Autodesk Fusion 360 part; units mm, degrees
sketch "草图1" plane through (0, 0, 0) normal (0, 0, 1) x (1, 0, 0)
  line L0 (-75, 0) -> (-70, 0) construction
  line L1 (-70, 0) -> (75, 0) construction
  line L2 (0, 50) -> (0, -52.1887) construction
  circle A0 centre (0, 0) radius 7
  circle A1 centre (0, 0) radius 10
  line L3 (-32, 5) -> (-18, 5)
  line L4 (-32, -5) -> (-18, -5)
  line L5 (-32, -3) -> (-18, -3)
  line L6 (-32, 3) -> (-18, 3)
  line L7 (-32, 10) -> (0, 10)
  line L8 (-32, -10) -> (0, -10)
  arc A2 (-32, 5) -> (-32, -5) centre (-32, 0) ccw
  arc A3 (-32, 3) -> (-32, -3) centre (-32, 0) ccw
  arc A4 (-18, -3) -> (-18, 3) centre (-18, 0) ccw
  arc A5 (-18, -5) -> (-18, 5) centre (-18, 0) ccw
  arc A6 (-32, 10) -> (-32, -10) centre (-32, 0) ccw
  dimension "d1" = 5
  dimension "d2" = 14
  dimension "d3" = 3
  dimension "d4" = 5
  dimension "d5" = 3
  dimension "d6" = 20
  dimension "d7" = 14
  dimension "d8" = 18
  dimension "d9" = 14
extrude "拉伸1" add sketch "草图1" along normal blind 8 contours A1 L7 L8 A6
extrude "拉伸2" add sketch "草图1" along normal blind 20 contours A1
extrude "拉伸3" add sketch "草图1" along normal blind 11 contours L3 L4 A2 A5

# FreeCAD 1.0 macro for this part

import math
import FreeCAD as App
import Part
import Sketcher
Q = App.Units.Quantity

doc = App.newDocument("Part")
body = doc.addObject("PartDesign::Body", "Body")

# Sketch on XY plane
sketch1 = doc.addObject("Sketcher::SketchObject", "Sketch")
body.addObject(sketch1)
sketch1.AttachmentSupport = (doc.XY_Plane, [""])
sketch1.MapMode = "FlatFace"
sketch1.addGeometry(Part.ArcOfCircle(Part.Circle(App.Vector(0, 0, 0), App.Vector(0, 0, 1), 10), math.radians(90), math.radians(270)), False)
sketch1.addGeometry(Part.LineSegment(App.Vector(0, 10, 0), App.Vector(-32, 10, 0)), False)
sketch1.addGeometry(Part.ArcOfCircle(Part.Circle(App.Vector(-32, 0, 0), App.Vector(0, 0, 1), 10), math.radians(90), math.radians(270)), False)
sketch1.addGeometry(Part.LineSegment(App.Vector(-32, -10, 0), App.Vector(0, -10, 0)), False)
sketch1.addGeometry(Part.ArcOfCircle(Part.Circle(App.Vector(-32, 0, 0), App.Vector(0, 0, 1), 5), math.radians(90), math.radians(270)), False)
sketch1.addGeometry(Part.LineSegment(App.Vector(-32, 5, 0), App.Vector(-18, 5, 0)), False)
sketch1.addGeometry(Part.ArcOfCircle(Part.Circle(App.Vector(-18, 0, 0), App.Vector(0, 0, 1), 5), math.radians(-90), math.radians(90)), False)
sketch1.addGeometry(Part.LineSegment(App.Vector(-18, -5, 0), App.Vector(-32, -5, 0)), False)
sketch1.addConstraint(Sketcher.Constraint("Tangent", 0, 1, 1, 1))
sketch1.addConstraint(Sketcher.Constraint("Tangent", 1, 2, 2, 1))
sketch1.addConstraint(Sketcher.Constraint("Tangent", 2, 2, 3, 1))
sketch1.addConstraint(Sketcher.Constraint("Tangent", 3, 2, 0, 2))
sketch1.addConstraint(Sketcher.Constraint("Tangent", 4, 1, 5, 1))
sketch1.addConstraint(Sketcher.Constraint("Tangent", 5, 2, 6, 2))
sketch1.addConstraint(Sketcher.Constraint("Tangent", 6, 1, 7, 1))
sketch1.addConstraint(Sketcher.Constraint("Tangent", 7, 2, 4, 2))
sketch1.addConstraint(Sketcher.Constraint("Horizontal", 1))
sketch1.addConstraint(Sketcher.Constraint("Horizontal", 3))
sketch1.addConstraint(Sketcher.Constraint("Horizontal", 5))
sketch1.addConstraint(Sketcher.Constraint("Horizontal", 7))
sketch1.addConstraint(Sketcher.Constraint("Coincident", 0, 3, -1, 1))
sketch1.addConstraint(Sketcher.Constraint("Coincident", 4, 3, 2, 3))
sketch1.addConstraint(Sketcher.Constraint("Radius", 0, Q("10 mm")))
sketch1.addConstraint(Sketcher.Constraint("Radius", 4, Q("5 mm")))
sketch1.addConstraint(Sketcher.Constraint("DistanceX", 5, 1, 5, 2, Q("14 mm")))
sketch1.addConstraint(Sketcher.Constraint("DistanceX", 6, 3, -1, 1, Q("18 mm")))
pad1 = doc.addObject("PartDesign::Pad", "Pad")
body.addObject(pad1)
pad1.Profile = sketch1
pad1.Length = 8

# Sketch on XY plane
sketch2 = doc.addObject("Sketcher::SketchObject", "Sketch001")
body.addObject(sketch2)
sketch2.AttachmentSupport = (doc.XY_Plane, [""])
sketch2.MapMode = "FlatFace"
sketch2.addGeometry(Part.Circle(App.Vector(0, 0, 0), App.Vector(0, 0, 1), 10), False)
sketch2.addGeometry(Part.Circle(App.Vector(0, 0, 0), App.Vector(0, 0, 1), 7), False)
sketch2.addConstraint(Sketcher.Constraint("Coincident", 0, 3, -1, 1))
sketch2.addConstraint(Sketcher.Constraint("Coincident", 1, 3, -1, 1))
sketch2.addConstraint(Sketcher.Constraint("Diameter", 0, Q("20 mm")))
sketch2.addConstraint(Sketcher.Constraint("Diameter", 1, Q("14 mm")))
pad2 = doc.addObject("PartDesign::Pad", "Pad001")
body.addObject(pad2)
pad2.Profile = sketch2
pad2.Length = 20

# Sketch on XY plane
sketch3 = doc.addObject("Sketcher::SketchObject", "Sketch002")
body.addObject(sketch3)
sketch3.AttachmentSupport = (doc.XY_Plane, [""])
sketch3.MapMode = "FlatFace"
sketch3.addGeometry(Part.LineSegment(App.Vector(-18, 5, 0), App.Vector(-32, 5, 0)), False)
sketch3.addGeometry(Part.ArcOfCircle(Part.Circle(App.Vector(-32, 0, 0), App.Vector(0, 0, 1), 5), math.radians(90), math.radians(270)), False)
sketch3.addGeometry(Part.LineSegment(App.Vector(-32, -5, 0), App.Vector(-18, -5, 0)), False)
sketch3.addGeometry(Part.ArcOfCircle(Part.Circle(App.Vector(-18, 0, 0), App.Vector(0, 0, 1), 5), math.radians(-90), math.radians(90)), False)
sketch3.addGeometry(Part.LineSegment(App.Vector(-18, -3, 0), App.Vector(-32, -3, 0)), False)
sketch3.addGeometry(Part.ArcOfCircle(Part.Circle(App.Vector(-32, 0, 0), App.Vector(0, 0, 1), 3), math.radians(90), math.radians(270)), False)
sketch3.addGeometry(Part.LineSegment(App.Vector(-32, 3, 0), App.Vector(-18, 3, 0)), False)
sketch3.addGeometry(Part.ArcOfCircle(Part.Circle(App.Vector(-18, 0, 0), App.Vector(0, 0, 1), 3), math.radians(-90), math.radians(90)), False)
sketch3.addConstraint(Sketcher.Constraint("Tangent", 0, 2, 1, 1))
sketch3.addConstraint(Sketcher.Constraint("Tangent", 1, 2, 2, 1))
sketch3.addConstraint(Sketcher.Constraint("Tangent", 2, 2, 3, 1))
sketch3.addConstraint(Sketcher.Constraint("Tangent", 3, 2, 0, 1))
sketch3.addConstraint(Sketcher.Constraint("Tangent", 4, 2, 5, 2))
sketch3.addConstraint(Sketcher.Constraint("Tangent", 5, 1, 6, 1))
sketch3.addConstraint(Sketcher.Constraint("Tangent", 6, 2, 7, 2))
sketch3.addConstraint(Sketcher.Constraint("Tangent", 7, 1, 4, 1))
sketch3.addConstraint(Sketcher.Constraint("Horizontal", 0))
sketch3.addConstraint(Sketcher.Constraint("Horizontal", 2))
sketch3.addConstraint(Sketcher.Constraint("Horizontal", 4))
sketch3.addConstraint(Sketcher.Constraint("Horizontal", 6))
sketch3.addConstraint(Sketcher.Constraint("Coincident", 5, 3, 1, 3))
sketch3.addConstraint(Sketcher.Constraint("PointOnObject", 1, 3, -1))
sketch3.addConstraint(Sketcher.Constraint("Vertical", 7, 3, 2, 2))
sketch3.addConstraint(Sketcher.Constraint("Radius", 1, Q("5 mm")))
sketch3.addConstraint(Sketcher.Constraint("Radius", 5, Q("3 mm")))
sketch3.addConstraint(Sketcher.Constraint("DistanceX", 0, 2, 0, 1, Q("14 mm")))
sketch3.addConstraint(Sketcher.Constraint("DistanceX", 3, 3, -1, 1, Q("18 mm")))
pad3 = doc.addObject("PartDesign::Pad", "Pad002")
body.addObject(pad3)
pad3.Profile = sketch3
pad3.Length = 11

doc.recompute()
